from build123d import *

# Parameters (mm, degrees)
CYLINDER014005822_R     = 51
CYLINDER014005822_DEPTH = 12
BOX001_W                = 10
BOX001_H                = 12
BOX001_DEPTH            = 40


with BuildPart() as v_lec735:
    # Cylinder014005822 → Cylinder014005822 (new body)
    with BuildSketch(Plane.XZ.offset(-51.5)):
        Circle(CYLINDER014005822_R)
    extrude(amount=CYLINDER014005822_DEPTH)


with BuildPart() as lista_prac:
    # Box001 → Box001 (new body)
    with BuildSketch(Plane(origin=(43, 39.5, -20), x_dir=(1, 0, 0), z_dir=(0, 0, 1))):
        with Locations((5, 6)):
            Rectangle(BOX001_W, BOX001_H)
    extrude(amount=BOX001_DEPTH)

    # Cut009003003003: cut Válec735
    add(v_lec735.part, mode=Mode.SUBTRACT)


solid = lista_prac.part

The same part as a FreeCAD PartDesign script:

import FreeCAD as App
import Part
import Sketcher
Q = App.Units.Quantity

doc = App.newDocument("Part")
params = doc.addObject("Spreadsheet::Sheet", "Params")
for row, (alias, value) in enumerate([
    ("sketch1_diameter", "102 mm"),
    ("pad1_length", "12 mm"),
    ("sketch2_width", "10 mm"),
    ("sketch2_height", "12 mm"),
    ("pad2_length", "40 mm"),
], start=1):
    params.set(f"A{row}", alias)
    params.set(f"B{row}", "=" + value)
    params.setAlias(f"B{row}", alias)

body = doc.addObject("PartDesign::Body", "Body")

# Sketch on XZ plane
sketch1 = doc.addObject("Sketcher::SketchObject", "Sketch")
body.addObject(sketch1)
sketch1.AttachmentSupport = (doc.XZ_Plane, [""])
sketch1.MapMode = "FlatFace"
sketch1.AttachmentOffset = App.Placement(App.Vector(0, 0, -51.5), App.Rotation())
sketch1.addGeometry(Part.Circle(App.Vector(0, 0, 0), App.Vector(0, 0, 1), 51), False)
sketch1.addConstraint([
    Sketcher.Constraint("Coincident", 0, 3, -1, 1),
    Sketcher.Constraint("Diameter", 0, Q("102 mm")),
])
sketch1.setExpression("Constraints[1]", "Params.sketch1_diameter")
pad1 = doc.addObject("PartDesign::Pad", "Pad")
body.addObject(pad1)
pad1.Profile = sketch1
pad1.setExpression("Length", "Params.pad1_length")
body2 = doc.addObject("PartDesign::Body", "Body001")

# Sketch on XY plane
sketch2 = doc.addObject("Sketcher::SketchObject", "Sketch001")
body2.addObject(sketch2)
sketch2.AttachmentSupport = (doc.getObject("XY_Plane001"), [""])
sketch2.MapMode = "FlatFace"
sketch2.AttachmentOffset = App.Placement(App.Vector(0, 0, -20), App.Rotation())
sketch2.addGeometry([
    Part.LineSegment(App.Vector(43, 52, 0), App.Vector(43, 40, 0)),
    Part.LineSegment(App.Vector(43, 40, 0), App.Vector(53, 40, 0)),
    Part.LineSegment(App.Vector(53, 40, 0), App.Vector(53, 52, 0)),
    Part.LineSegment(App.Vector(53, 52, 0), App.Vector(43, 52, 0)),
], False)
sketch2.addConstraint([
    Sketcher.Constraint("Coincident", 0, 2, 1, 1),
    Sketcher.Constraint("Coincident", 1, 2, 2, 1),
    Sketcher.Constraint("Coincident", 2, 2, 3, 1),
    Sketcher.Constraint("Coincident", 3, 2, 0, 1),
    Sketcher.Constraint("Vertical", 0),
    Sketcher.Constraint("Horizontal", 1),
    Sketcher.Constraint("Vertical", 2),
    Sketcher.Constraint("Horizontal", 3),
    Sketcher.Constraint("DistanceX", 1, 1, 1, 2, Q("10 mm")),
    Sketcher.Constraint("DistanceY", 0, 2, 0, 1, Q("12 mm")),
    Sketcher.Constraint("DistanceX", -1, 1, 0, 2, Q("43 mm")),
    Sketcher.Constraint("DistanceY", -1, 1, 0, 2, Q("39.5 mm")),
])
sketch2.setExpression("Constraints[8]", "Params.sketch2_width")
sketch2.setExpression("Constraints[9]", "Params.sketch2_height")
pad2 = doc.addObject("PartDesign::Pad", "Pad001")
body2.addObject(pad2)
pad2.Profile = sketch2
pad2.setExpression("Length", "Params.pad2_length")
doc.recompute()

boolean = doc.addObject("PartDesign::Boolean", "Boolean")
body2.addObject(boolean)
boolean.Type = "Cut"
boolean.addObjects([body])

doc.recompute()
